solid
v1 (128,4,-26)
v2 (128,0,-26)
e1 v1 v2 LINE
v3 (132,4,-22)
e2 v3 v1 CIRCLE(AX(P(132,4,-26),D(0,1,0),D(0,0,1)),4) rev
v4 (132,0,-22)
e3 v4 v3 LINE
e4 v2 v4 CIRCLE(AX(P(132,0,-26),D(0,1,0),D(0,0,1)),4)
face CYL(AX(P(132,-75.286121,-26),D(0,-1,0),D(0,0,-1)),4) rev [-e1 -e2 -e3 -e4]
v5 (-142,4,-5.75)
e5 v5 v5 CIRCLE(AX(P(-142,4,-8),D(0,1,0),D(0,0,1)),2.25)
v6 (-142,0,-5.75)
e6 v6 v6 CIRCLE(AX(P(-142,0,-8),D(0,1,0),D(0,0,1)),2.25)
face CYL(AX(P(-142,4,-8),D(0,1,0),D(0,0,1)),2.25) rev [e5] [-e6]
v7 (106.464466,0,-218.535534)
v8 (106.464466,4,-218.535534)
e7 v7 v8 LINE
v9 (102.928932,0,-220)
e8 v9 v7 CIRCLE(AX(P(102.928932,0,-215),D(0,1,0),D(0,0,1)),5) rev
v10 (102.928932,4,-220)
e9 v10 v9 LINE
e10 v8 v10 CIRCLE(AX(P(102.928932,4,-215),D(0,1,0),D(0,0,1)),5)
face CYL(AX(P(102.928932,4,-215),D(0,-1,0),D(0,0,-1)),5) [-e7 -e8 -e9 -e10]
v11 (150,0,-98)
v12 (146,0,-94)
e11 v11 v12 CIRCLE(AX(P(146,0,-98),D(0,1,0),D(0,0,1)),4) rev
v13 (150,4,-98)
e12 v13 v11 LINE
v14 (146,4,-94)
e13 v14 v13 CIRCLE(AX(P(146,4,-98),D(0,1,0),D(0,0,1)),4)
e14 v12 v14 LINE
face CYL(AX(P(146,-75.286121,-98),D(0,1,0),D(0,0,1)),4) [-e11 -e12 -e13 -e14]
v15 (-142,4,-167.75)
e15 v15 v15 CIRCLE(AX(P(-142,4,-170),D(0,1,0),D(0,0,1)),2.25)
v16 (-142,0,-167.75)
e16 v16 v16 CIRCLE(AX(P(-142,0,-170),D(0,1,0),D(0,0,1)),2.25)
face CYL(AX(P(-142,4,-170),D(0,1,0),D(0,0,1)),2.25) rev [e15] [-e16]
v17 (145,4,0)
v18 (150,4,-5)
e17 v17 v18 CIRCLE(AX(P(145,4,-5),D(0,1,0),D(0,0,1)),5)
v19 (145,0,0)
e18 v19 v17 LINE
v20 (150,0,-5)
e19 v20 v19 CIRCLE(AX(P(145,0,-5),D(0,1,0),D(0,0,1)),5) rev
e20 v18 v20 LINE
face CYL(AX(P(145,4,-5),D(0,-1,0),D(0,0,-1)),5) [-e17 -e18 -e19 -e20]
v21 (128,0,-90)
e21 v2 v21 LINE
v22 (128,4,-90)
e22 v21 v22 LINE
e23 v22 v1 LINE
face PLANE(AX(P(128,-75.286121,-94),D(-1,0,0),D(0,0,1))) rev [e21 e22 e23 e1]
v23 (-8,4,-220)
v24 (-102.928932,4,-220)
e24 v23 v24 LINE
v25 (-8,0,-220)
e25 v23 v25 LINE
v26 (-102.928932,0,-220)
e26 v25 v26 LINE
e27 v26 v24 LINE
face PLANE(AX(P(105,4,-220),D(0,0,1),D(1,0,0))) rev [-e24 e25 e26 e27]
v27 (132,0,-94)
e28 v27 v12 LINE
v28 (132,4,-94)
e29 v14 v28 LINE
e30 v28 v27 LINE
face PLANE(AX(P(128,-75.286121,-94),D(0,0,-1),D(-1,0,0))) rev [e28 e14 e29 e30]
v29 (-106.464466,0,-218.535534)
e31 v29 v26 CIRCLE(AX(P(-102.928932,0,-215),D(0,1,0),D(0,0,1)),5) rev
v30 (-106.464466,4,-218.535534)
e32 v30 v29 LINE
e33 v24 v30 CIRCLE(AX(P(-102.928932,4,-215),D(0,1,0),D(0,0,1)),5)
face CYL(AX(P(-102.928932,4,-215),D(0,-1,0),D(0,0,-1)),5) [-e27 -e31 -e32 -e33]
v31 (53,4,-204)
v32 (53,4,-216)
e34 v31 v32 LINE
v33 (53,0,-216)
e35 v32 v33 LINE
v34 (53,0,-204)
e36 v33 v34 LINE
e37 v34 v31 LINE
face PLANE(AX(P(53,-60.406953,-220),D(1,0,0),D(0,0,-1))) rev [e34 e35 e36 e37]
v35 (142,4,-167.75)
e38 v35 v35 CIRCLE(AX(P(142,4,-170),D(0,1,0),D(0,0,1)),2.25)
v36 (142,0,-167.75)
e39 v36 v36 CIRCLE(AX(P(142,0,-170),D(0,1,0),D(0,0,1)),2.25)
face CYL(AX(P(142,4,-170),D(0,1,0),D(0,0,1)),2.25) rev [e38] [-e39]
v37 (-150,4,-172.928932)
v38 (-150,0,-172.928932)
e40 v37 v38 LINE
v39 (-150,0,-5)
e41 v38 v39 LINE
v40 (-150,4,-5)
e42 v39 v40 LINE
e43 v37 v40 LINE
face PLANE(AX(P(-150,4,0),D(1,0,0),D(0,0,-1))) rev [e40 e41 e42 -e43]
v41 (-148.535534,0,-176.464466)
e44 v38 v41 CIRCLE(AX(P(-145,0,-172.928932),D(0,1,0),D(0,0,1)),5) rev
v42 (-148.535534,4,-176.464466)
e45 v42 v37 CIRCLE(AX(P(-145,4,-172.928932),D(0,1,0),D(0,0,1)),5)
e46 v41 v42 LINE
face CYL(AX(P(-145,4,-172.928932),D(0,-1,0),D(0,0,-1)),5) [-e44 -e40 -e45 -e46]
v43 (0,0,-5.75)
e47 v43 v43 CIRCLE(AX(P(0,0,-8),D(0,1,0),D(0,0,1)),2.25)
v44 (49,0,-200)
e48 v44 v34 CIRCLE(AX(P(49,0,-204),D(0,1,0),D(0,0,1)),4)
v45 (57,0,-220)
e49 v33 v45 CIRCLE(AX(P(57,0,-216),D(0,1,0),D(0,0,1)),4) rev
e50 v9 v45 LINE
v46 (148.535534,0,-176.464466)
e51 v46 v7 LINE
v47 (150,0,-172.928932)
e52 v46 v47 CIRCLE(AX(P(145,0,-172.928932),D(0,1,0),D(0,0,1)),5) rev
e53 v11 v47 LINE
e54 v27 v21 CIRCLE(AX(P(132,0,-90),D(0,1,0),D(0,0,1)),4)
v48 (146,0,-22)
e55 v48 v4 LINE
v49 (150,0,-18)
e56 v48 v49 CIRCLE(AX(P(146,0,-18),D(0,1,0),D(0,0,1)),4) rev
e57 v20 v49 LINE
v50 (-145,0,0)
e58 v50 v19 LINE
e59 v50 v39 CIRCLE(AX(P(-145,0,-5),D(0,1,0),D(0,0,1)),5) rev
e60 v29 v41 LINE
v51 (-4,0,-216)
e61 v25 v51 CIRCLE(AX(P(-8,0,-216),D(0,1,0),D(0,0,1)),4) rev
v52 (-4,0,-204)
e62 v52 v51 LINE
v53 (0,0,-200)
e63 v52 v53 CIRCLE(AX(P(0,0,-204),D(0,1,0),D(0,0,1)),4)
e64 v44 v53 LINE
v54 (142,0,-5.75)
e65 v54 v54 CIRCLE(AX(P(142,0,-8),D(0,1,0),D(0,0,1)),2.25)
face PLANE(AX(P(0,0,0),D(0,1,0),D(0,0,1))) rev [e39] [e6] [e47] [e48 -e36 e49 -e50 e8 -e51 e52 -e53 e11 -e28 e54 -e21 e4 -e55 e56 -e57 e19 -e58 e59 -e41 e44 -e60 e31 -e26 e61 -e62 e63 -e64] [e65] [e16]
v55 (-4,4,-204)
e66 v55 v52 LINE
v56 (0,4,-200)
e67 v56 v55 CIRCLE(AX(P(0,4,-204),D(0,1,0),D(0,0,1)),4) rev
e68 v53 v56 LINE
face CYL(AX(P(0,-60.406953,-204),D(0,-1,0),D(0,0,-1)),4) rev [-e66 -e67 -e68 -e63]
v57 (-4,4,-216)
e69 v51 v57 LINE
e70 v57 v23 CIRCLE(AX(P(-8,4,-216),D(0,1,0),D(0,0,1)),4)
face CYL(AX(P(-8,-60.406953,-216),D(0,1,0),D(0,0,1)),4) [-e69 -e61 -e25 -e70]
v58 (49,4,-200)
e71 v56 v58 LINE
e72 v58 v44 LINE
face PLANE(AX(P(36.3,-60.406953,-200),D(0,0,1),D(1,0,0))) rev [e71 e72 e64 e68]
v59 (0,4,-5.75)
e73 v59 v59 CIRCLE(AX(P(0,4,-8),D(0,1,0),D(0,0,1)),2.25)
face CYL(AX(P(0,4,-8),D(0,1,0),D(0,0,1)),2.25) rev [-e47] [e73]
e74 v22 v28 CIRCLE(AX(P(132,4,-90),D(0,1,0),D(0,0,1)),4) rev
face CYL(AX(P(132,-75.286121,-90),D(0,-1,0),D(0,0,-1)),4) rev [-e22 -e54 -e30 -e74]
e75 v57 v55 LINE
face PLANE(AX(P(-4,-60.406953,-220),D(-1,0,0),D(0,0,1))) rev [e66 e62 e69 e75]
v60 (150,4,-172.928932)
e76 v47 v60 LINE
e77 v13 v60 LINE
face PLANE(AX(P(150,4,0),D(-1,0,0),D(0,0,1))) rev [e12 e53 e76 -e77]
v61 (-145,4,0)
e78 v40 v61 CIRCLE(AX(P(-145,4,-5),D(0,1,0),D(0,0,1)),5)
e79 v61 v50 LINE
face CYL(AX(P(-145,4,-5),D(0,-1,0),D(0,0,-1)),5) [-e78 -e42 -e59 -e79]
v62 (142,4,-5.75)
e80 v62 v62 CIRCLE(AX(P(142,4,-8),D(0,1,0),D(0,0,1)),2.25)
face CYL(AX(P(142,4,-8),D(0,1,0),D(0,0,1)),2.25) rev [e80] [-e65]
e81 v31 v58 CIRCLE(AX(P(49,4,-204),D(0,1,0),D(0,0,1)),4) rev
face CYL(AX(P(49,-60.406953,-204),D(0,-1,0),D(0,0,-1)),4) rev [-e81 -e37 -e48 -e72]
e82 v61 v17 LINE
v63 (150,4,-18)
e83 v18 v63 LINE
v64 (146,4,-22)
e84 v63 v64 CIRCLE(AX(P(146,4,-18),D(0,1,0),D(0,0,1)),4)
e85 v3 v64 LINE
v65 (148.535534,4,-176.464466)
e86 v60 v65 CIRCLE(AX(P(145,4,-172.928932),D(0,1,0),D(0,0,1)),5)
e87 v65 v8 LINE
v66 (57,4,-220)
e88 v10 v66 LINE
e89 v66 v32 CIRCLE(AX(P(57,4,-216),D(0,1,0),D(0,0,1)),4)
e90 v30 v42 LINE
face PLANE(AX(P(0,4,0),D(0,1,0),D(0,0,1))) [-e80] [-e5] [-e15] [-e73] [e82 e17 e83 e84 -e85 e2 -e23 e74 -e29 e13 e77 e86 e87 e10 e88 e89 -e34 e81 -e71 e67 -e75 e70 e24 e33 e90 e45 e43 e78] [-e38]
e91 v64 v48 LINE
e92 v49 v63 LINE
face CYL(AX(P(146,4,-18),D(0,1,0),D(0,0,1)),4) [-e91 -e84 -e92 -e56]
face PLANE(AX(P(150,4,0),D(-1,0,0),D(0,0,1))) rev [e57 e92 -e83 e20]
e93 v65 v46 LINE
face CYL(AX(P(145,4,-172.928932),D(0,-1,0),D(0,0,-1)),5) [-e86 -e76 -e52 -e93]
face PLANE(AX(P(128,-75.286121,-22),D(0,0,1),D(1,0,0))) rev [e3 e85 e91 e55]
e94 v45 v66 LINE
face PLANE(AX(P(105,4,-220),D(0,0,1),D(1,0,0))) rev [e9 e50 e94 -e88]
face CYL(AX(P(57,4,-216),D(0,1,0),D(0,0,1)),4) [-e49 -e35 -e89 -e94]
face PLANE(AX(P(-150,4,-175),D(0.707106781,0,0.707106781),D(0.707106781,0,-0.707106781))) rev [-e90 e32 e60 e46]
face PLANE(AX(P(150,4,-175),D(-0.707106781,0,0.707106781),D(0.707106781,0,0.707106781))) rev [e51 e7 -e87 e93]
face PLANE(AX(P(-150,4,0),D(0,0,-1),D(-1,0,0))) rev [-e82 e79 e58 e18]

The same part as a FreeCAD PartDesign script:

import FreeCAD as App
import Part
import Sketcher
from FreeCAD import Vector
Q = App.Units.Quantity


def edges_at(feature, points):
    """Names of the edges that pass closest to the given points."""
    edges = feature.Shape.Edges
    near = lambda p: min(range(len(edges)), key=lambda i: edges[i].distToShape(Part.Vertex(*p))[0])
    return sorted({f"Edge{near(p) + 1}" for p in points})

doc = App.newDocument("Part")
body = doc.addObject("PartDesign::Body", "Body")

# Sketch on XZ plane
sketch1 = doc.addObject("Sketcher::SketchObject", "Sketch")
body.addObject(sketch1)
sketch1.AttachmentSupport = (doc.XZ_Plane, [""])
sketch1.MapMode = "FlatFace"
sketch1.addGeometry(Part.LineSegment(Vector(-150, 0, 0), Vector(150, 0, 0)), False)
sketch1.addGeometry(Part.LineSegment(Vector(150, 0, 0), Vector(150, -175, 0)), False)
sketch1.addGeometry(Part.LineSegment(Vector(150, -175, 0), Vector(105, -220, 0)), False)
sketch1.addGeometry(Part.LineSegment(Vector(105, -220, 0), Vector(-105, -220, 0)), False)
sketch1.addGeometry(Part.LineSegment(Vector(-105, -220, 0), Vector(-150, -175, 0)), False)
sketch1.addGeometry(Part.LineSegment(Vector(-150, -175, 0), Vector(-150, 0, 0)), False)
sketch1.addConstraint(Sketcher.Constraint("Coincident", 0, 2, 1, 1))
sketch1.addConstraint(Sketcher.Constraint("Coincident", 1, 2, 2, 1))
sketch1.addConstraint(Sketcher.Constraint("Coincident", 2, 2, 3, 1))
sketch1.addConstraint(Sketcher.Constraint("Coincident", 3, 2, 4, 1))
sketch1.addConstraint(Sketcher.Constraint("Coincident", 4, 2, 5, 1))
sketch1.addConstraint(Sketcher.Constraint("Coincident", 5, 2, 0, 1))
sketch1.addConstraint(Sketcher.Constraint("Horizontal", 0))
sketch1.addConstraint(Sketcher.Constraint("Vertical", 1))
sketch1.addConstraint(Sketcher.Constraint("Horizontal", 3))
sketch1.addConstraint(Sketcher.Constraint("Vertical", 5))
sketch1.addConstraint(Sketcher.Constraint("Symmetric", 0, 2, 5, 2, -1, 1))
sketch1.addConstraint(Sketcher.Constraint("Perpendicular", 2, 4))
sketch1.addConstraint(Sketcher.Constraint("Horizontal", 1, 2, 4, 2))
sketch1.addConstraint(Sketcher.Constraint("Equal", 2, 4))
sketch1.addConstraint(Sketcher.Constraint("DistanceX", 0, 1, 0, 2, Q("300 mm")))
sketch1.addConstraint(Sketcher.Constraint("DistanceX", 3, 2, 3, 1, Q("210 mm")))
sketch1.addConstraint(Sketcher.Constraint("DistanceY", 1, 2, 1, 1, Q("175 mm")))
pad1 = doc.addObject("PartDesign::Pad", "Pad")
body.addObject(pad1)
pad1.Profile = sketch1
pad1.Length = 4
pad1.Reversed = True
doc.recompute()

fillet = doc.addObject("PartDesign::Fillet", "Fillet")
body.addObject(fillet)
fillet.Base = (pad1, edges_at(pad1, [
    (150, 2, 0),
    (-150, 2, 0),
    (-150, 2, -175),
    (-105, 2, -220),
    (105, 2, -220),
    (150, 2, -175),
]))
fillet.Radius = 5

# Sketch on XZ plane
sketch2 = doc.addObject("Sketcher::SketchObject", "Sketch001")
body.addObject(sketch2)
sketch2.AttachmentSupport = (doc.XZ_Plane, [""])
sketch2.MapMode = "FlatFace"
sketch2.AttachmentOffset = App.Placement(Vector(0, 0, -4), App.Rotation())
sketch2.addGeometry(Part.Circle(Vector(-142, -8, 0), Vector(0, 0, 1), 2.2), False)
sketch2.addGeometry(Part.Circle(Vector(-142, -170, 0), Vector(0, 0, 1), 2.2), False)
sketch2.addGeometry(Part.Circle(Vector(142, -170, 0), Vector(0, 0, 1), 2.2), False)
sketch2.addGeometry(Part.Circle(Vector(142, -8, 0), Vector(0, 0, 1), 2.2), False)
sketch2.addGeometry(Part.Circle(Vector(0, -8, 0), Vector(0, 0, 1), 2.2), False)
sketch2.addConstraint(Sketcher.Constraint("Equal", 0, 1))
sketch2.addConstraint(Sketcher.Constraint("Equal", 1, 2))
sketch2.addConstraint(Sketcher.Constraint("Equal", 2, 3))
sketch2.addConstraint(Sketcher.Constraint("Equal", 3, 4))
sketch2.addConstraint(Sketcher.Constraint("Symmetric", 1, 3, 2, 3, -2))
sketch2.addConstraint(Sketcher.Constraint("Symmetric", 0, 3, 3, 3, -2))
sketch2.addConstraint(Sketcher.Constraint("PointOnObject", 4, 3, -2))
sketch2.addConstraint(Sketcher.Constraint("Horizontal", 3, 3, 4, 3))
sketch2.addConstraint(Sketcher.Constraint("Vertical", 0, 3, 1, 3))
sketch2.addConstraint(Sketcher.Constraint("Diameter", 0, Q("4.5 mm")))
sketch2.addConstraint(Sketcher.Constraint("DistanceX", 0, 3, -1, 1, Q("142 mm")))
sketch2.addConstraint(Sketcher.Constraint("DistanceY", 0, 3, -1, 1, Q("8 mm")))
sketch2.addConstraint(Sketcher.Constraint("DistanceY", 1, 3, -1, 1, Q("170 mm")))
doc.recompute()
hole = doc.addObject("PartDesign::Hole", "Hole")
body.addObject(hole)
hole.Profile = sketch2
hole.ThreadType = "None"
hole.Diameter = 4.5
hole.DepthType = "ThroughAll"
hole.Reversed = True

# Sketch on XZ plane
sketch3 = doc.addObject("Sketcher::SketchObject", "Sketch002")
body.addObject(sketch3)
sketch3.AttachmentSupport = (doc.XZ_Plane, [""])
sketch3.MapMode = "FlatFace"
sketch3.AttachmentOffset = App.Placement(Vector(0, 0, -4), App.Rotation())
sketch3.addGeometry(Part.LineSegment(Vector(128, -94, 0), Vector(128, -22, 0)), False)
sketch3.addGeometry(Part.LineSegment(Vector(128, -22, 0), Vector(150, -22, 0)), False)
sketch3.addGeometry(Part.LineSegment(Vector(150, -22, 0), Vector(150, -94, 0)), False)
sketch3.addGeometry(Part.LineSegment(Vector(150, -94, 0), Vector(128, -94, 0)), False)
sketch3.addConstraint(Sketcher.Constraint("Coincident", 0, 2, 1, 1))
sketch3.addConstraint(Sketcher.Constraint("Coincident", 1, 2, 2, 1))
sketch3.addConstraint(Sketcher.Constraint("Coincident", 2, 2, 3, 1))
sketch3.addConstraint(Sketcher.Constraint("Coincident", 3, 2, 0, 1))
sketch3.addConstraint(Sketcher.Constraint("Vertical", 0))
sketch3.addConstraint(Sketcher.Constraint("Horizontal", 1))
sketch3.addConstraint(Sketcher.Constraint("Vertical", 2))
sketch3.addConstraint(Sketcher.Constraint("Horizontal", 3))
sketch3.addConstraint(Sketcher.Constraint("DistanceX", 1, 1, 1, 2, Q("22 mm")))
sketch3.addConstraint(Sketcher.Constraint("DistanceY", 0, 1, 0, 2, Q("72 mm")))
sketch3.addConstraint(Sketcher.Constraint("DistanceX", -1, 1, 0, 2, Q("128 mm")))
sketch3.addConstraint(Sketcher.Constraint("DistanceY", 0, 2, -1, 1, Q("22 mm")))
pocket1 = doc.addObject("PartDesign::Pocket", "Pocket")
body.addObject(pocket1)
pocket1.Profile = sketch3
pocket1.Length = 4
pocket1.Reversed = True

# Sketch on XZ plane
sketch4 = doc.addObject("Sketcher::SketchObject", "Sketch003")
body.addObject(sketch4)
sketch4.AttachmentSupport = (doc.XZ_Plane, [""])
sketch4.MapMode = "FlatFace"
sketch4.AttachmentOffset = App.Placement(Vector(0, 0, -4), App.Rotation())
sketch4.addGeometry(Part.LineSegment(Vector(53, -200, 0), Vector(53, -220, 0)), False)
sketch4.addGeometry(Part.LineSegment(Vector(53, -220, 0), Vector(-4, -220, 0)), False)
sketch4.addGeometry(Part.LineSegment(Vector(-4, -220, 0), Vector(-4, -200, 0)), False)
sketch4.addGeometry(Part.LineSegment(Vector(-4, -200, 0), Vector(53, -200, 0)), False)
sketch4.addConstraint(Sketcher.Constraint("Coincident", 0, 2, 1, 1))
sketch4.addConstraint(Sketcher.Constraint("Coincident", 1, 2, 2, 1))
sketch4.addConstraint(Sketcher.Constraint("Coincident", 2, 2, 3, 1))
sketch4.addConstraint(Sketcher.Constraint("Coincident", 3, 2, 0, 1))
sketch4.addConstraint(Sketcher.Constraint("Vertical", 0))
sketch4.addConstraint(Sketcher.Constraint("Horizontal", 1))
sketch4.addConstraint(Sketcher.Constraint("Vertical", 2))
sketch4.addConstraint(Sketcher.Constraint("Horizontal", 3))
sketch4.addConstraint(Sketcher.Constraint("DistanceX", 1, 2, 1, 1, Q("57 mm")))
sketch4.addConstraint(Sketcher.Constraint("DistanceY", 0, 2, 0, 1, Q("20 mm")))
sketch4.addConstraint(Sketcher.Constraint("DistanceX", -1, 1, 0, 2, Q("53 mm")))
sketch4.addConstraint(Sketcher.Constraint("DistanceY", 0, 2, -1, 1, Q("220 mm")))
pocket2 = doc.addObject("PartDesign::Pocket", "Pocket001")
body.addObject(pocket2)
pocket2.Profile = sketch4
pocket2.Length = 4
pocket2.Reversed = True
doc.recompute()

fillet2 = doc.addObject("PartDesign::Fillet", "Fillet001")
body.addObject(fillet2)
fillet2.Base = (pocket2, edges_at(pocket2, [
    (150, 2, -94),
    (150, 2, -22),
    (128, 2, -22),
    (128, 2, -94),
    (53, 2, -220),
    (53, 2, -200),
    (-4, 2, -200),
    (-4, 2, -220),
]))
fillet2.Radius = 4

doc.recompute()
